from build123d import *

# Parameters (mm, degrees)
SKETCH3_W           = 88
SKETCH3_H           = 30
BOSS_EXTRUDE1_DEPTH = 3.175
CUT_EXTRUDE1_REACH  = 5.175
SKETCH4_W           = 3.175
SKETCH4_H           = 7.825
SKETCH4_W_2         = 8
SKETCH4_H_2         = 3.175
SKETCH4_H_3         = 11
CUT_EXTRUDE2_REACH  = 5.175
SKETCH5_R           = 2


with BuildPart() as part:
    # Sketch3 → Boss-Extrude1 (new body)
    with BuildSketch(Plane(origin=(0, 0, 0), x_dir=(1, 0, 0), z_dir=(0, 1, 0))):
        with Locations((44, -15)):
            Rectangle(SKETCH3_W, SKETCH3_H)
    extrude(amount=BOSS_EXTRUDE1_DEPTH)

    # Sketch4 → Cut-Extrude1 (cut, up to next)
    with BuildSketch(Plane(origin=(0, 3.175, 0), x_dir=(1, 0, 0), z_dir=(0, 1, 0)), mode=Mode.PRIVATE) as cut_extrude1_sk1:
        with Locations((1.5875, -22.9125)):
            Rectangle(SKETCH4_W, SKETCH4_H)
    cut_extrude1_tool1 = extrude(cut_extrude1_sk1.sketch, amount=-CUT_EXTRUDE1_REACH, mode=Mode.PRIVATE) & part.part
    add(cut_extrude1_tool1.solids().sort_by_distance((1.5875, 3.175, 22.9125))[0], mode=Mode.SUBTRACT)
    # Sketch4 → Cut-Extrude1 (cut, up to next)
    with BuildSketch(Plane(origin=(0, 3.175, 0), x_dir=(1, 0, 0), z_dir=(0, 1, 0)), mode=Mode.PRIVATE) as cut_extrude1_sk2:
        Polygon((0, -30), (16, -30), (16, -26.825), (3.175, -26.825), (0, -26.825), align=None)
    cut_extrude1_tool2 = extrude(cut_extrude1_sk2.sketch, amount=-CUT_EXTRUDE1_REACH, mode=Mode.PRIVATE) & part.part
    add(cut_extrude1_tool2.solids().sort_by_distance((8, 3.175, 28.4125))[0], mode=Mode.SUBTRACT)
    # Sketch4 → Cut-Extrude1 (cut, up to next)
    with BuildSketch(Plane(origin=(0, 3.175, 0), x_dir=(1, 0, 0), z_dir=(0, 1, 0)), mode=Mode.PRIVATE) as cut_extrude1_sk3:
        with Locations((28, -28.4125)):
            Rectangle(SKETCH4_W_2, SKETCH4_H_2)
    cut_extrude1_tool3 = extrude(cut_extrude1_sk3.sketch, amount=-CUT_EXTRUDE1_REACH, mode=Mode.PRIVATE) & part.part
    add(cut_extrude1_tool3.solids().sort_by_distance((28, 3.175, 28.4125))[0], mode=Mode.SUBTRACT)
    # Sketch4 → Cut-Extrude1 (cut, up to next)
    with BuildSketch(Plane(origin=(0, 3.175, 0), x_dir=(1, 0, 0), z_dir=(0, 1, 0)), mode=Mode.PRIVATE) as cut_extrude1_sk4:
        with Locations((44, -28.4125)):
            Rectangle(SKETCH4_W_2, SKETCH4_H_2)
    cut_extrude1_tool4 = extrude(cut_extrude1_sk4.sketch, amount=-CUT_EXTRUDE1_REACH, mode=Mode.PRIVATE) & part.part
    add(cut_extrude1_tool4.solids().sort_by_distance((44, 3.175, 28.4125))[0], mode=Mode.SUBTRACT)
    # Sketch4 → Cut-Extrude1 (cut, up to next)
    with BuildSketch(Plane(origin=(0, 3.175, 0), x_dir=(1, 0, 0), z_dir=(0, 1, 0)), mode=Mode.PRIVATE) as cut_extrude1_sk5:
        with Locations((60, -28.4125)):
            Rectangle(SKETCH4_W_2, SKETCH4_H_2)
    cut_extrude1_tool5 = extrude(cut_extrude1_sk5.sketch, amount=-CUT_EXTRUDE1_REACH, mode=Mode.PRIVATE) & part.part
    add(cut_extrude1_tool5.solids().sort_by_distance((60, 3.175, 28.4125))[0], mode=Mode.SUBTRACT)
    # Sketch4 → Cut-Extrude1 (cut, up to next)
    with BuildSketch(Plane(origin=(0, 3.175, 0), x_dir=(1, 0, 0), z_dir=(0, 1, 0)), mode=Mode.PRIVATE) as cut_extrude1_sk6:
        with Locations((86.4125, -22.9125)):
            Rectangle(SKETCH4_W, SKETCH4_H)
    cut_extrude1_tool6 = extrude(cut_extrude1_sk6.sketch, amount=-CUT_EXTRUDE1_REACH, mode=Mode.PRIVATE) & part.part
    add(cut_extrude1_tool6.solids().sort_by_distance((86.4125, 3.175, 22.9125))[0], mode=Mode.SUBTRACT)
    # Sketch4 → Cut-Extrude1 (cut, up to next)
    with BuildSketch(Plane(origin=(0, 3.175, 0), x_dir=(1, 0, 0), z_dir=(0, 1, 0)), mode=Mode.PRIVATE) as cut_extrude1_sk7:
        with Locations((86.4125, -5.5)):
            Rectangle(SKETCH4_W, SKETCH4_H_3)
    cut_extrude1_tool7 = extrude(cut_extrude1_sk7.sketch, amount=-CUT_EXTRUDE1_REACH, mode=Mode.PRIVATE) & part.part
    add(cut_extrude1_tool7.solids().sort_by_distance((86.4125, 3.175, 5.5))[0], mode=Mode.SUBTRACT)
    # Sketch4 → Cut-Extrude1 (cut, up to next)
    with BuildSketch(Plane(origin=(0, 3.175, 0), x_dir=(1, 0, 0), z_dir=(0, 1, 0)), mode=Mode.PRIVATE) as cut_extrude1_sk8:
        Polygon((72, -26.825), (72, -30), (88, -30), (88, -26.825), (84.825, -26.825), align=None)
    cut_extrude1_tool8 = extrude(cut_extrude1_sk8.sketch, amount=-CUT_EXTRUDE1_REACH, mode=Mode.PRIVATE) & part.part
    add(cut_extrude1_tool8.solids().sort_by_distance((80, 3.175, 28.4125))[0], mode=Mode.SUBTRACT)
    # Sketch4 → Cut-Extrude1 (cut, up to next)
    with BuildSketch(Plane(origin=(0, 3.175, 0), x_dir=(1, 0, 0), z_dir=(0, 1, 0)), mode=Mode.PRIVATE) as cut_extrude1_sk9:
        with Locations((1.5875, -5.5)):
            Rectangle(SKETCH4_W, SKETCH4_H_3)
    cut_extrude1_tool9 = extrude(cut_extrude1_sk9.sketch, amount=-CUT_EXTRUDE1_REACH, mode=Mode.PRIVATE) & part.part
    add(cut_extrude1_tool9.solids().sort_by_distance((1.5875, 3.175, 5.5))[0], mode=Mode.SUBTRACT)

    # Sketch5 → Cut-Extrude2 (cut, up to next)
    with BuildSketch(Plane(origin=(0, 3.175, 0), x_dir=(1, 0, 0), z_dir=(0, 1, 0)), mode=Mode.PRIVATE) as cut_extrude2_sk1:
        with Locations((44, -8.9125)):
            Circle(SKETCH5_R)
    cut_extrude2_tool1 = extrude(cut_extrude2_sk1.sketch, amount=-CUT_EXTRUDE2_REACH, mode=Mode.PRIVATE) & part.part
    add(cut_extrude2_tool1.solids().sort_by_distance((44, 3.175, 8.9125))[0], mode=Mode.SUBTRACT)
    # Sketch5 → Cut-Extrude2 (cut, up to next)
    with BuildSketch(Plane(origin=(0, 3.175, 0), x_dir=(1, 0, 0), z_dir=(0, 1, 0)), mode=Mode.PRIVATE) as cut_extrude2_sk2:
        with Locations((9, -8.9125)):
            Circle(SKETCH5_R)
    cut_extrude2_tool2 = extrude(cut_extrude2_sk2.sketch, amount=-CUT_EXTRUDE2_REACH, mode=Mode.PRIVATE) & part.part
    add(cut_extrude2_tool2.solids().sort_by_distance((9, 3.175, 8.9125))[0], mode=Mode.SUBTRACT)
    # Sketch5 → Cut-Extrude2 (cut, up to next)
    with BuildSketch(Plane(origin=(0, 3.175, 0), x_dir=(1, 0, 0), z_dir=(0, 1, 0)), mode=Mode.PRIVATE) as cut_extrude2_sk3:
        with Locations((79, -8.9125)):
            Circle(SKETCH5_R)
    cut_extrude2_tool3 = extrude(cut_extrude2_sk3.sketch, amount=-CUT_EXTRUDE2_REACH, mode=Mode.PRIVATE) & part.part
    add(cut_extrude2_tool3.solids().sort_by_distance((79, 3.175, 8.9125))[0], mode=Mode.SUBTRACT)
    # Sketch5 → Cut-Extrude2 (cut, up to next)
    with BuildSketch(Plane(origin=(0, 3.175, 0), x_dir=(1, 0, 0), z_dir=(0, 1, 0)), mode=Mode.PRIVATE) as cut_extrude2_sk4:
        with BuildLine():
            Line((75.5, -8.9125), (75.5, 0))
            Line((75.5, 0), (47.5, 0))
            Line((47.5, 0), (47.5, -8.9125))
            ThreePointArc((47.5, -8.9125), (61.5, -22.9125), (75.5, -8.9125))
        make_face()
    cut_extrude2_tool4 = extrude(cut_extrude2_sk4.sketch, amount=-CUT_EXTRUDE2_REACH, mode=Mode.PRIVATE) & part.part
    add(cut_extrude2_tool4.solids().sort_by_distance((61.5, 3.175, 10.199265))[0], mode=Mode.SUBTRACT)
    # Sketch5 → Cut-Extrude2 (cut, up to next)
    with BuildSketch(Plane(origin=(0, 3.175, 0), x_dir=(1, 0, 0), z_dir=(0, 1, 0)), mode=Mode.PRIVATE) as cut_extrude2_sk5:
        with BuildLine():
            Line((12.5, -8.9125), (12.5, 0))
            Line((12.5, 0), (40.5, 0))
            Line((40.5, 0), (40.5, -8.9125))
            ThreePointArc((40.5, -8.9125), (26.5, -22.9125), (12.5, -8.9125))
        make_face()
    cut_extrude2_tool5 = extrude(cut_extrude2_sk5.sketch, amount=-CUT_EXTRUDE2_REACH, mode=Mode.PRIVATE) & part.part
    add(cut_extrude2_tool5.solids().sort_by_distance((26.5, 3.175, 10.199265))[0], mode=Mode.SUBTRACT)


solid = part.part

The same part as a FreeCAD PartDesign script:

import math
import FreeCAD as App
import Part
import Sketcher


def add_polygon(sketch, points):
    """Adds a closed chain of lines whose ends are joined by coincident constraints."""
    first, n = sketch.GeometryCount, len(points)
    for a, b in zip(points, points[1:] + points[:1]):
        sketch.addGeometry(Part.LineSegment(App.Vector(*a, 0), App.Vector(*b, 0)), False)
    for i in range(n):
        sketch.addConstraint(Sketcher.Constraint("Coincident", first + i, 2, first + (i + 1) % n, 1))

doc = App.newDocument("Part")
body = doc.addObject("PartDesign::Body", "Body")

# Sketch on XZ plane
sketch1 = body.newObject("Sketcher::SketchObject", "Sketch")
sketch1.AttachmentSupport = (doc.getObject("XZ_Plane"), [""])
sketch1.MapMode = "FlatFace"
add_polygon(sketch1, [(0, 0), (0, 30), (88, 30), (88, 0)])  # lines 0-3
sketch1.addConstraint(Sketcher.Constraint("Vertical", 0))
sketch1.addConstraint(Sketcher.Constraint("Horizontal", 1))
sketch1.addConstraint(Sketcher.Constraint("Vertical", 2))
sketch1.addConstraint(Sketcher.Constraint("Horizontal", 3))
sketch1.addConstraint(Sketcher.Constraint("Coincident", 3, 2, -1, 1))
sketch1.addConstraint(Sketcher.Constraint("DistanceX", 1, 1, 1, 2, 88.0))
sketch1.addConstraint(Sketcher.Constraint("DistanceY", 0, 1, 0, 2, 30.0))
pad1 = body.newObject("PartDesign::Pad", "Pad")
pad1.Profile = sketch1
pad1.Length = 3.175
pad1.Reversed = True

# Sketch on XZ plane
sketch2 = body.newObject("Sketcher::SketchObject", "Sketch001")
sketch2.AttachmentSupport = (doc.getObject("XZ_Plane"), [""])
sketch2.MapMode = "FlatFace"
sketch2.AttachmentOffset = App.Placement(App.Vector(0, 0, -3.175), App.Rotation())
add_polygon(sketch2, [(0, 19), (0, 26.8), (3.2, 26.8), (3.2, 19)])  # lines 0-3
sketch2.addConstraint(Sketcher.Constraint("Vertical", 0))
sketch2.addConstraint(Sketcher.Constraint("Horizontal", 1))
sketch2.addConstraint(Sketcher.Constraint("Vertical", 2))
sketch2.addConstraint(Sketcher.Constraint("Horizontal", 3))
sketch2.addConstraint(Sketcher.Constraint("PointOnObject", 0, 2, -2))
sketch2.addConstraint(Sketcher.Constraint("DistanceY", -1, 1, 2, 2, 19.0))
sketch2.addConstraint(Sketcher.Constraint("DistanceX", 1, 1, 1, 2, 3.175))
sketch2.addConstraint(Sketcher.Constraint("DistanceY", 0, 1, 0, 2, 7.825))
pocket1 = body.newObject("PartDesign::Pocket", "Pocket")
pocket1.Profile = sketch2
pocket1.Type = "UpToFirst"
pocket1.Reversed = True

# Sketch on XZ plane
sketch3 = body.newObject("Sketcher::SketchObject", "Sketch002")
sketch3.AttachmentSupport = (doc.getObject("XZ_Plane"), [""])
sketch3.MapMode = "FlatFace"
sketch3.AttachmentOffset = App.Placement(App.Vector(0, 0, -3.175), App.Rotation())
add_polygon(sketch3, [(0, 30), (16, 30), (16, 26.8), (0, 26.8)])  # lines 0-3
sketch3.addConstraint(Sketcher.Constraint("Horizontal", 0))
sketch3.addConstraint(Sketcher.Constraint("Vertical", 1))
sketch3.addConstraint(Sketcher.Constraint("Horizontal", 2))
sketch3.addConstraint(Sketcher.Constraint("Vertical", 3))
sketch3.addConstraint(Sketcher.Constraint("PointOnObject", 2, 2, -2))
sketch3.addConstraint(Sketcher.Constraint("DistanceX", 0, 1, 0, 2, 16.0))
sketch3.addConstraint(Sketcher.Constraint("DistanceY", -1, 1, 0, 2, 30.0))
sketch3.addConstraint(Sketcher.Constraint("DistanceY", 1, 2, 1, 1, 3.175))
pocket2 = body.newObject("PartDesign::Pocket", "Pocket001")
pocket2.Profile = sketch3
pocket2.Type = "UpToFirst"
pocket2.Reversed = True

# Sketch on XZ plane
sketch4 = body.newObject("Sketcher::SketchObject", "Sketch003")
sketch4.AttachmentSupport = (doc.getObject("XZ_Plane"), [""])
sketch4.MapMode = "FlatFace"
sketch4.AttachmentOffset = App.Placement(App.Vector(0, 0, -3.175), App.Rotation())
add_polygon(sketch4, [(24, 26.8), (24, 30), (32, 30), (32, 26.8)])  # lines 0-3
sketch4.addConstraint(Sketcher.Constraint("Vertical", 0))
sketch4.addConstraint(Sketcher.Constraint("Horizontal", 1))
sketch4.addConstraint(Sketcher.Constraint("Vertical", 2))
sketch4.addConstraint(Sketcher.Constraint("Horizontal", 3))
sketch4.addConstraint(Sketcher.Constraint("DistanceX", 1, 1, 1, 2, 8.0))
sketch4.addConstraint(Sketcher.Constraint("DistanceX", -1, 1, 0, 2, 24.0))
sketch4.addConstraint(Sketcher.Constraint("DistanceY", -1, 1, 0, 2, 30.0))
sketch4.addConstraint(Sketcher.Constraint("DistanceY", 0, 1, 0, 2, 3.175))
pocket3 = body.newObject("PartDesign::Pocket", "Pocket002")
pocket3.Profile = sketch4
pocket3.Type = "UpToFirst"
pocket3.Reversed = True

# Sketch on XZ plane
sketch5 = body.newObject("Sketcher::SketchObject", "Sketch004")
sketch5.AttachmentSupport = (doc.getObject("XZ_Plane"), [""])
sketch5.MapMode = "FlatFace"
sketch5.AttachmentOffset = App.Placement(App.Vector(0, 0, -3.175), App.Rotation())
add_polygon(sketch5, [(40, 26.8), (40, 30), (48, 30), (48, 26.8)])  # lines 0-3
sketch5.addConstraint(Sketcher.Constraint("Vertical", 0))
sketch5.addConstraint(Sketcher.Constraint("Horizontal", 1))
sketch5.addConstraint(Sketcher.Constraint("Vertical", 2))
sketch5.addConstraint(Sketcher.Constraint("Horizontal", 3))
sketch5.addConstraint(Sketcher.Constraint("DistanceX", 1, 1, 1, 2, 8.0))
sketch5.addConstraint(Sketcher.Constraint("DistanceX", -1, 1, 0, 2, 40.0))
sketch5.addConstraint(Sketcher.Constraint("DistanceY", -1, 1, 0, 2, 30.0))
sketch5.addConstraint(Sketcher.Constraint("DistanceY", 0, 1, 0, 2, 3.175))
pocket4 = body.newObject("PartDesign::Pocket", "Pocket003")
pocket4.Profile = sketch5
pocket4.Type = "UpToFirst"
pocket4.Reversed = True

# Sketch on XZ plane
sketch6 = body.newObject("Sketcher::SketchObject", "Sketch005")
sketch6.AttachmentSupport = (doc.getObject("XZ_Plane"), [""])
sketch6.MapMode = "FlatFace"
sketch6.AttachmentOffset = App.Placement(App.Vector(0, 0, -3.175), App.Rotation())
add_polygon(sketch6, [(56, 26.8), (56, 30), (64, 30), (64, 26.8)])  # lines 0-3
sketch6.addConstraint(Sketcher.Constraint("Vertical", 0))
sketch6.addConstraint(Sketcher.Constraint("Horizontal", 1))
sketch6.addConstraint(Sketcher.Constraint("Vertical", 2))
sketch6.addConstraint(Sketcher.Constraint("Horizontal", 3))
sketch6.addConstraint(Sketcher.Constraint("DistanceX", 1, 1, 1, 2, 8.0))
sketch6.addConstraint(Sketcher.Constraint("DistanceX", -1, 1, 0, 2, 56.0))
sketch6.addConstraint(Sketcher.Constraint("DistanceY", -1, 1, 0, 2, 30.0))
sketch6.addConstraint(Sketcher.Constraint("DistanceY", 0, 1, 0, 2, 3.175))
pocket5 = body.newObject("PartDesign::Pocket", "Pocket004")
pocket5.Profile = sketch6
pocket5.Type = "UpToFirst"
pocket5.Reversed = True

# Sketch on XZ plane
sketch7 = body.newObject("Sketcher::SketchObject", "Sketch006")
sketch7.AttachmentSupport = (doc.getObject("XZ_Plane"), [""])
sketch7.MapMode = "FlatFace"
sketch7.AttachmentOffset = App.Placement(App.Vector(0, 0, -3.175), App.Rotation())
add_polygon(sketch7, [(84.8, 19), (84.8, 26.8), (88, 26.8), (88, 19)])  # lines 0-3
sketch7.addConstraint(Sketcher.Constraint("Vertical", 0))
sketch7.addConstraint(Sketcher.Constraint("Horizontal", 1))
sketch7.addConstraint(Sketcher.Constraint("Vertical", 2))
sketch7.addConstraint(Sketcher.Constraint("Horizontal", 3))
sketch7.addConstraint(Sketcher.Constraint("DistanceX", -1, 1, 1, 2, 88.0))
sketch7.addConstraint(Sketcher.Constraint("DistanceY", -1, 1, 2, 2, 19.0))
sketch7.addConstraint(Sketcher.Constraint("DistanceX", 1, 1, 1, 2, 3.175))
sketch7.addConstraint(Sketcher.Constraint("DistanceY", 0, 1, 0, 2, 7.825))
pocket6 = body.newObject("PartDesign::Pocket", "Pocket005")
pocket6.Profile = sketch7
pocket6.Type = "UpToFirst"
pocket6.Reversed = True

# Sketch on XZ plane
sketch8 = body.newObject("Sketcher::SketchObject", "Sketch007")
sketch8.AttachmentSupport = (doc.getObject("XZ_Plane"), [""])
sketch8.MapMode = "FlatFace"
sketch8.AttachmentOffset = App.Placement(App.Vector(0, 0, -3.175), App.Rotation())
add_polygon(sketch8, [(84.8, 0), (84.8, 11), (88, 11), (88, 0)])  # lines 0-3
sketch8.addConstraint(Sketcher.Constraint("Vertical", 0))
sketch8.addConstraint(Sketcher.Constraint("Horizontal", 1))
sketch8.addConstraint(Sketcher.Constraint("Vertical", 2))
sketch8.addConstraint(Sketcher.Constraint("Horizontal", 3))
sketch8.addConstraint(Sketcher.Constraint("PointOnObject", 2, 2, -1))
sketch8.addConstraint(Sketcher.Constraint("DistanceY", 0, 1, 0, 2, 11.0))
sketch8.addConstraint(Sketcher.Constraint("DistanceX", -1, 1, 1, 2, 88.0))
sketch8.addConstraint(Sketcher.Constraint("DistanceX", 1, 1, 1, 2, 3.175))
pocket7 = body.newObject("PartDesign::Pocket", "Pocket006")
pocket7.Profile = sketch8
pocket7.Type = "UpToFirst"
pocket7.Reversed = True

# Sketch on XZ plane
sketch9 = body.newObject("Sketcher::SketchObject", "Sketch008")
sketch9.AttachmentSupport = (doc.getObject("XZ_Plane"), [""])
sketch9.MapMode = "FlatFace"
sketch9.AttachmentOffset = App.Placement(App.Vector(0, 0, -3.175), App.Rotation())
add_polygon(sketch9, [(72, 26.8), (72, 30), (88, 30), (88, 26.8)])  # lines 0-3
sketch9.addConstraint(Sketcher.Constraint("Vertical", 0))
sketch9.addConstraint(Sketcher.Constraint("Horizontal", 1))
sketch9.addConstraint(Sketcher.Constraint("Vertical", 2))
sketch9.addConstraint(Sketcher.Constraint("Horizontal", 3))
sketch9.addConstraint(Sketcher.Constraint("DistanceX", 1, 1, 1, 2, 16.0))
sketch9.addConstraint(Sketcher.Constraint("DistanceX", -1, 1, 0, 2, 72.0))
sketch9.addConstraint(Sketcher.Constraint("DistanceY", -1, 1, 0, 2, 30.0))
sketch9.addConstraint(Sketcher.Constraint("DistanceY", 0, 1, 0, 2, 3.175))
pocket8 = body.newObject("PartDesign::Pocket", "Pocket007")
pocket8.Profile = sketch9
pocket8.Type = "UpToFirst"
pocket8.Reversed = True

# Sketch on XZ plane
sketch10 = body.newObject("Sketcher::SketchObject", "Sketch009")
sketch10.AttachmentSupport = (doc.getObject("XZ_Plane"), [""])
sketch10.MapMode = "FlatFace"
sketch10.AttachmentOffset = App.Placement(App.Vector(0, 0, -3.175), App.Rotation())
add_polygon(sketch10, [(0, 0), (0, 11), (3.2, 11), (3.2, 0)])  # lines 0-3
sketch10.addConstraint(Sketcher.Constraint("Vertical", 0))
sketch10.addConstraint(Sketcher.Constraint("Horizontal", 1))
sketch10.addConstraint(Sketcher.Constraint("Vertical", 2))
sketch10.addConstraint(Sketcher.Constraint("Horizontal", 3))
sketch10.addConstraint(Sketcher.Constraint("Coincident", 3, 2, -1, 1))
sketch10.addConstraint(Sketcher.Constraint("DistanceY", 0, 1, 0, 2, 11.0))
sketch10.addConstraint(Sketcher.Constraint("DistanceX", 1, 1, 1, 2, 3.175))
pocket9 = body.newObject("PartDesign::Pocket", "Pocket008")
pocket9.Profile = sketch10
pocket9.Type = "UpToFirst"
pocket9.Reversed = True

# Sketch on XZ plane
sketch11 = body.newObject("Sketcher::SketchObject", "Sketch010")
sketch11.AttachmentSupport = (doc.getObject("XZ_Plane"), [""])
sketch11.MapMode = "FlatFace"
sketch11.AttachmentOffset = App.Placement(App.Vector(0, 0, -3.175), App.Rotation())
sketch11.addGeometry(Part.Circle(App.Vector(44, 8.9, 0), App.Vector(0, 0, 1), 2), False)
sketch11.addConstraint(Sketcher.Constraint("Diameter", 0, 4.0))
sketch11.addConstraint(Sketcher.Constraint("DistanceX", -1, 1, 0, 3, 44.0))
sketch11.addConstraint(Sketcher.Constraint("DistanceY", -1, 1, 0, 3, 8.9125))
pocket10 = body.newObject("PartDesign::Pocket", "Pocket009")
pocket10.Profile = sketch11
pocket10.Type = "UpToFirst"
pocket10.Reversed = True

# Sketch on XZ plane
sketch12 = body.newObject("Sketcher::SketchObject", "Sketch011")
sketch12.AttachmentSupport = (doc.getObject("XZ_Plane"), [""])
sketch12.MapMode = "FlatFace"
sketch12.AttachmentOffset = App.Placement(App.Vector(0, 0, -3.175), App.Rotation())
sketch12.addGeometry(Part.Circle(App.Vector(9, 8.9, 0), App.Vector(0, 0, 1), 2), False)
sketch12.addConstraint(Sketcher.Constraint("Diameter", 0, 4.0))
sketch12.addConstraint(Sketcher.Constraint("DistanceX", -1, 1, 0, 3, 9.0))
sketch12.addConstraint(Sketcher.Constraint("DistanceY", -1, 1, 0, 3, 8.9125))
pocket11 = body.newObject("PartDesign::Pocket", "Pocket010")
pocket11.Profile = sketch12
pocket11.Type = "UpToFirst"
pocket11.Reversed = True

# Sketch on XZ plane
sketch13 = body.newObject("Sketcher::SketchObject", "Sketch012")
sketch13.AttachmentSupport = (doc.getObject("XZ_Plane"), [""])
sketch13.MapMode = "FlatFace"
sketch13.AttachmentOffset = App.Placement(App.Vector(0, 0, -3.175), App.Rotation())
sketch13.addGeometry(Part.Circle(App.Vector(79, 8.9, 0), App.Vector(0, 0, 1), 2), False)
sketch13.addConstraint(Sketcher.Constraint("Diameter", 0, 4.0))
sketch13.addConstraint(Sketcher.Constraint("DistanceX", -1, 1, 0, 3, 79.0))
sketch13.addConstraint(Sketcher.Constraint("DistanceY", -1, 1, 0, 3, 8.9125))
pocket12 = body.newObject("PartDesign::Pocket", "Pocket011")
pocket12.Profile = sketch13
pocket12.Type = "UpToFirst"
pocket12.Reversed = True

# Sketch on XZ plane
sketch14 = body.newObject("Sketcher::SketchObject", "Sketch013")
sketch14.AttachmentSupport = (doc.getObject("XZ_Plane"), [""])
sketch14.MapMode = "FlatFace"
sketch14.AttachmentOffset = App.Placement(App.Vector(0, 0, -3.175), App.Rotation())
sketch14.addGeometry(Part.LineSegment(App.Vector(76, 9, 0), App.Vector(76, 0, 0)), False)
sketch14.addGeometry(Part.LineSegment(App.Vector(76, 0, 0), App.Vector(48, 0, 0)), False)
sketch14.addGeometry(Part.LineSegment(App.Vector(48, 0, 0), App.Vector(48, 9, 0)), False)
sketch14.addGeometry(Part.ArcOfCircle(Part.Circle(App.Vector(62, 9, 0), App.Vector(0, 0, 1), 14), math.radians(0), math.radians(180)), False)
sketch14.addConstraint(Sketcher.Constraint("Coincident", 0, 2, 1, 1))
sketch14.addConstraint(Sketcher.Constraint("Coincident", 1, 2, 2, 1))
sketch14.addConstraint(Sketcher.Constraint("Tangent", 2, 2, 3, 2))
sketch14.addConstraint(Sketcher.Constraint("Tangent", 3, 1, 0, 1))
sketch14.addConstraint(Sketcher.Constraint("Vertical", 0))
sketch14.addConstraint(Sketcher.Constraint("Horizontal", 1))
sketch14.addConstraint(Sketcher.Constraint("Vertical", 2))
sketch14.addConstraint(Sketcher.Constraint("PointOnObject", 0, 2, -1))
sketch14.addConstraint(Sketcher.Constraint("Radius", 3, 14.0))
sketch14.addConstraint(Sketcher.Constraint("DistanceX", -1, 1, 3, 3, 61.5))
sketch14.addConstraint(Sketcher.Constraint("DistanceY", 0, 2, 0, 1, 8.9125))
pocket13 = body.newObject("PartDesign::Pocket", "Pocket012")
pocket13.Profile = sketch14
pocket13.Type = "UpToFirst"
pocket13.Reversed = True

# Sketch on XZ plane
sketch15 = body.newObject("Sketcher::SketchObject", "Sketch014")
sketch15.AttachmentSupport = (doc.getObject("XZ_Plane"), [""])
sketch15.MapMode = "FlatFace"
sketch15.AttachmentOffset = App.Placement(App.Vector(0, 0, -3.175), App.Rotation())
sketch15.addGeometry(Part.LineSegment(App.Vector(12, 0, 0), App.Vector(12, 9, 0)), False)
sketch15.addGeometry(Part.ArcOfCircle(Part.Circle(App.Vector(26, 9, 0), App.Vector(0, 0, 1), 14), math.radians(0), math.radians(180)), False)
sketch15.addGeometry(Part.LineSegment(App.Vector(40, 9, 0), App.Vector(40, 0, 0)), False)
sketch15.addGeometry(Part.LineSegment(App.Vector(40, 0, 0), App.Vector(12, 0, 0)), False)
sketch15.addConstraint(Sketcher.Constraint("Tangent", 0, 2, 1, 2))
sketch15.addConstraint(Sketcher.Constraint("Tangent", 1, 1, 2, 1))
sketch15.addConstraint(Sketcher.Constraint("Coincident", 2, 2, 3, 1))
sketch15.addConstraint(Sketcher.Constraint("Coincident", 3, 2, 0, 1))
sketch15.addConstraint(Sketcher.Constraint("Vertical", 0))
sketch15.addConstraint(Sketcher.Constraint("Vertical", 2))
sketch15.addConstraint(Sketcher.Constraint("Horizontal", 3))
sketch15.addConstraint(Sketcher.Constraint("PointOnObject", 2, 2, -1))
sketch15.addConstraint(Sketcher.Constraint("Radius", 1, 14.0))
sketch15.addConstraint(Sketcher.Constraint("DistanceX", -1, 1, 1, 3, 26.5))
sketch15.addConstraint(Sketcher.Constraint("DistanceY", 0, 1, 0, 2, 8.9125))
pocket14 = body.newObject("PartDesign::Pocket", "Pocket013")
pocket14.Profile = sketch15
pocket14.Type = "UpToFirst"
pocket14.Reversed = True

doc.recompute()
